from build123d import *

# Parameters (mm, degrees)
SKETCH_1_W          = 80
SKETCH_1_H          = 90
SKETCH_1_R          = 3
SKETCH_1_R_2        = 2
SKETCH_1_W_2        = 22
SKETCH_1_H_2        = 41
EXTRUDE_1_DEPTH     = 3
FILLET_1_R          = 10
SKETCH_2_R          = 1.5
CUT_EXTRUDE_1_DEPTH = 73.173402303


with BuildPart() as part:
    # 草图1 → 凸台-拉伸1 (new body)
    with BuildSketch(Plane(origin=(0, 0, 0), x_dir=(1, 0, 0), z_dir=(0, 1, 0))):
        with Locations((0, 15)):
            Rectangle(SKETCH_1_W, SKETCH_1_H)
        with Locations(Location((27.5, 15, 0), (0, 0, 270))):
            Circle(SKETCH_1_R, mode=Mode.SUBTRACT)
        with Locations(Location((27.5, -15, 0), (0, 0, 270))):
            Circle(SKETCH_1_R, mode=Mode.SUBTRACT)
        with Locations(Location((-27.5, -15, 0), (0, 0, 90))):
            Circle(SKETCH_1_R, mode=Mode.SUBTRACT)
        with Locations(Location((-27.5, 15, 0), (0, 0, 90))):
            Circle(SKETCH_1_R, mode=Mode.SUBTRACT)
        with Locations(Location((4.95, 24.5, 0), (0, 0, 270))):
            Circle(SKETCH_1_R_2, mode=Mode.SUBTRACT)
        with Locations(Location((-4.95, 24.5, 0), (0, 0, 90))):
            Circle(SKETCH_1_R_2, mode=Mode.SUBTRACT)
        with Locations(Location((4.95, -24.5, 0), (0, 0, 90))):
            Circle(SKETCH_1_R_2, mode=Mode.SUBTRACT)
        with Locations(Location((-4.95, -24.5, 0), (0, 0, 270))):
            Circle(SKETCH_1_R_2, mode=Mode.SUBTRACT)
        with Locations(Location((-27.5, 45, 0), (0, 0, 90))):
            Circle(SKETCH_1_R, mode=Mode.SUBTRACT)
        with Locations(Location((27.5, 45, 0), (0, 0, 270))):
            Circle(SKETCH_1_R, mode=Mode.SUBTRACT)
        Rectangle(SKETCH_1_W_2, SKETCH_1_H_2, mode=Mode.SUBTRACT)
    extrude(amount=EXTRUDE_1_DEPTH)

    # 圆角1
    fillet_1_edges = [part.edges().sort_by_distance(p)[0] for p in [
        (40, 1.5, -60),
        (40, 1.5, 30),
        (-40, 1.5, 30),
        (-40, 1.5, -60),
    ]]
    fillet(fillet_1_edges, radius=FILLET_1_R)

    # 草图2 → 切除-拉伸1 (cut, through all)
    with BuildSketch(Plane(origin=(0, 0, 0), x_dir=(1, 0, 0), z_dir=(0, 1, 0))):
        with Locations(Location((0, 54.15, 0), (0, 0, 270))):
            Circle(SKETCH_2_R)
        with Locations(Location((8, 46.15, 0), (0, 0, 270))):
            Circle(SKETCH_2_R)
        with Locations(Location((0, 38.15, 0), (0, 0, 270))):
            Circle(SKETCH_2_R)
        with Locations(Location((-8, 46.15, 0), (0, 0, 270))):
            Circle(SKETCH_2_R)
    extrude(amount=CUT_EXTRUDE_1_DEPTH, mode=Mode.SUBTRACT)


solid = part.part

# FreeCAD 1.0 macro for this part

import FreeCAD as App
import Part
import Sketcher
Q = App.Units.Quantity


def edges_at(feature, points):
    """Names of the edges that pass closest to the given points."""
    edges = feature.Shape.Edges
    near = lambda p: min(range(len(edges)), key=lambda i: edges[i].distToShape(Part.Vertex(*p))[0])
    return sorted({f"Edge{near(p) + 1}" for p in points})

doc = App.newDocument("Part")
params = doc.addObject("Spreadsheet::Sheet", "Params")
for row, (alias, value) in enumerate([
    ("sketch1_diameter", "6 mm"),
    ("sketch1_diameter2", "4 mm"),
    ("sketch1_width", "80 mm"),
    ("sketch1_width2", "22 mm"),
    ("sketch1_height", "90 mm"),
    ("pad1_length", "3 mm"),
    ("fillet_radius", "10 mm"),
    ("sketch2_diameter", "3 mm"),
], start=1):
    params.set(f"A{row}", alias)
    params.set(f"B{row}", "=" + value)
    params.setAlias(f"B{row}", alias)

body = doc.addObject("PartDesign::Body", "Body")

sketch1 = doc.addObject("Sketcher::SketchObject", "Sketch")
body.addObject(sketch1)
sketch1.AttachmentSupport = (doc.XZ_Plane, [""])
sketch1.MapMode = "FlatFace"
sketch1.addGeometry(Part.LineSegment(App.Vector(-40, -60, 0), App.Vector(-40, 30, 0)), False)
sketch1.addGeometry(Part.LineSegment(App.Vector(-40, 30, 0), App.Vector(40, 30, 0)), False)
sketch1.addGeometry(Part.LineSegment(App.Vector(40, 30, 0), App.Vector(40, -60, 0)), False)
sketch1.addGeometry(Part.LineSegment(App.Vector(40, -60, 0), App.Vector(-40, -60, 0)), False)
sketch1.addGeometry(Part.Circle(App.Vector(-27.5, 15, 0), App.Vector(0, 0, 1), 3), False)
sketch1.addGeometry(Part.Circle(App.Vector(-4.95, 24.5, 0), App.Vector(0, 0, 1), 2), False)
sketch1.addGeometry(Part.Circle(App.Vector(4.95, 24.5, 0), App.Vector(0, 0, 1), 2), False)
sketch1.addGeometry(Part.Circle(App.Vector(27.5, 15, 0), App.Vector(0, 0, 1), 3), False)
sketch1.addGeometry(Part.LineSegment(App.Vector(11, 20.5, 0), App.Vector(-11, 20.5, 0)), False)
sketch1.addGeometry(Part.LineSegment(App.Vector(-11, 20.5, 0), App.Vector(-11, -20.5, 0)), False)
sketch1.addGeometry(Part.LineSegment(App.Vector(-11, -20.5, 0), App.Vector(11, -20.5, 0)), False)
sketch1.addGeometry(Part.LineSegment(App.Vector(11, -20.5, 0), App.Vector(11, 20.5, 0)), False)
sketch1.addGeometry(Part.Circle(App.Vector(-27.5, -15, 0), App.Vector(0, 0, 1), 3), False)
sketch1.addGeometry(Part.Circle(App.Vector(-4.95, -24.5, 0), App.Vector(0, 0, 1), 2), False)
sketch1.addGeometry(Part.Circle(App.Vector(-27.5, -45, 0), App.Vector(0, 0, 1), 3), False)
sketch1.addGeometry(Part.Circle(App.Vector(4.95, -24.5, 0), App.Vector(0, 0, 1), 2), False)
sketch1.addGeometry(Part.Circle(App.Vector(27.5, -15, 0), App.Vector(0, 0, 1), 3), False)
sketch1.addGeometry(Part.Circle(App.Vector(27.5, -45, 0), App.Vector(0, 0, 1), 3), False)
sketch1.addConstraint(Sketcher.Constraint("Coincident", 0, 2, 1, 1))
sketch1.addConstraint(Sketcher.Constraint("Coincident", 1, 2, 2, 1))
sketch1.addConstraint(Sketcher.Constraint("Coincident", 2, 2, 3, 1))
sketch1.addConstraint(Sketcher.Constraint("Coincident", 3, 2, 0, 1))
sketch1.addConstraint(Sketcher.Constraint("Coincident", 8, 2, 9, 1))
sketch1.addConstraint(Sketcher.Constraint("Coincident", 9, 2, 10, 1))
sketch1.addConstraint(Sketcher.Constraint("Coincident", 10, 2, 11, 1))
sketch1.addConstraint(Sketcher.Constraint("Coincident", 11, 2, 8, 1))
sketch1.addConstraint(Sketcher.Constraint("Vertical", 0))
sketch1.addConstraint(Sketcher.Constraint("Horizontal", 1))
sketch1.addConstraint(Sketcher.Constraint("Vertical", 2))
sketch1.addConstraint(Sketcher.Constraint("Horizontal", 3))
sketch1.addConstraint(Sketcher.Constraint("Horizontal", 8))
sketch1.addConstraint(Sketcher.Constraint("Vertical", 9))
sketch1.addConstraint(Sketcher.Constraint("Horizontal", 10))
sketch1.addConstraint(Sketcher.Constraint("Vertical", 11))
sketch1.addConstraint(Sketcher.Constraint("Equal", 5, 6))
sketch1.addConstraint(Sketcher.Constraint("Equal", 4, 7))
sketch1.addConstraint(Sketcher.Constraint("Equal", 7, 12))
sketch1.addConstraint(Sketcher.Constraint("Equal", 6, 13))
sketch1.addConstraint(Sketcher.Constraint("Equal", 12, 14))
sketch1.addConstraint(Sketcher.Constraint("Equal", 13, 15))
sketch1.addConstraint(Sketcher.Constraint("Equal", 14, 16))
sketch1.addConstraint(Sketcher.Constraint("Equal", 16, 17))
sketch1.addConstraint(Sketcher.Constraint("Symmetric", 7, 3, 12, 3, -1, 1))
sketch1.addConstraint(Sketcher.Constraint("Symmetric", 6, 3, 13, 3, -1, 1))
sketch1.addConstraint(Sketcher.Constraint("Symmetric", 5, 3, 15, 3, -1, 1))
sketch1.addConstraint(Sketcher.Constraint("Symmetric", 4, 3, 16, 3, -1, 1))
sketch1.addConstraint(Sketcher.Constraint("Symmetric", 8, 2, 10, 2, -1, 1))
sketch1.addConstraint(Sketcher.Constraint("Symmetric", 5, 3, 6, 3, -2))
sketch1.addConstraint(Sketcher.Constraint("Symmetric", 4, 3, 7, 3, -2))
sketch1.addConstraint(Sketcher.Constraint("Symmetric", 14, 3, 17, 3, -2))
sketch1.addConstraint(Sketcher.Constraint("Vertical", 12, 3, 14, 3))
sketch1.addConstraint(Sketcher.Constraint("Diameter", 4, Q("6 mm")))
sketch1.addConstraint(Sketcher.Constraint("Diameter", 5, Q("4 mm")))
sketch1.addConstraint(Sketcher.Constraint("DistanceX", 1, 1, 1, 2, Q("80 mm")))
sketch1.addConstraint(Sketcher.Constraint("DistanceX", 8, 2, 8, 1, Q("22 mm")))
sketch1.addConstraint(Sketcher.Constraint("DistanceY", 0, 1, 0, 2, Q("90 mm")))
sketch1.addConstraint(Sketcher.Constraint("DistanceY", 9, 2, 9, 1, Q("41 mm")))
sketch1.addConstraint(Sketcher.Constraint("DistanceY", -1, 1, 4, 3, Q("15 mm")))
sketch1.addConstraint(Sketcher.Constraint("DistanceY", 14, 3, -1, 1, Q("45 mm")))
sketch1.addConstraint(Sketcher.Constraint("DistanceX", 0, 2, -1, 1, Q("40 mm")))
sketch1.addConstraint(Sketcher.Constraint("DistanceY", -1, 1, 0, 2, Q("30 mm")))
sketch1.addConstraint(Sketcher.Constraint("DistanceX", 4, 3, 7, 3, Q("55 mm")))
sketch1.addConstraint(Sketcher.Constraint("DistanceY", 13, 3, 5, 3, Q("49 mm")))
sketch1.addConstraint(Sketcher.Constraint("DistanceX", 5, 3, 6, 3, Q("9.9 mm")))
sketch1.setExpression("Constraints[33]", "Params.sketch1_diameter")
sketch1.setExpression("Constraints[34]", "Params.sketch1_diameter2")
sketch1.setExpression("Constraints[35]", "Params.sketch1_width")
sketch1.setExpression("Constraints[36]", "Params.sketch1_width2")
sketch1.setExpression("Constraints[37]", "Params.sketch1_height")
pad1 = doc.addObject("PartDesign::Pad", "Pad")
body.addObject(pad1)
pad1.Profile = sketch1
pad1.setExpression("Length", "Params.pad1_length")
pad1.Reversed = True
doc.recompute()

fillet = doc.addObject("PartDesign::Fillet", "Fillet")
body.addObject(fillet)
fillet.Base = (pad1, edges_at(pad1, [
    (40, 1.5, -60),
    (40, 1.5, 30),
    (-40, 1.5, 30),
    (-40, 1.5, -60),
]))
fillet.setExpression("Radius", "Params.fillet_radius")

sketch2 = doc.addObject("Sketcher::SketchObject", "Sketch001")
body.addObject(sketch2)
sketch2.AttachmentSupport = (doc.XZ_Plane, [""])
sketch2.MapMode = "FlatFace"
sketch2.addGeometry(Part.Circle(App.Vector(0, -54.15, 0), App.Vector(0, 0, 1), 1.5), False)
sketch2.addGeometry(Part.Circle(App.Vector(8, -46.15, 0), App.Vector(0, 0, 1), 1.5), False)
sketch2.addGeometry(Part.Circle(App.Vector(0, -38.15, 0), App.Vector(0, 0, 1), 1.5), False)
sketch2.addGeometry(Part.Circle(App.Vector(-8, -46.15, 0), App.Vector(0, 0, 1), 1.5), False)
sketch2.addConstraint(Sketcher.Constraint("Equal", 0, 1))
sketch2.addConstraint(Sketcher.Constraint("Equal", 1, 2))
sketch2.addConstraint(Sketcher.Constraint("Equal", 2, 3))
sketch2.addConstraint(Sketcher.Constraint("Symmetric", 1, 3, 3, 3, -2))
sketch2.addConstraint(Sketcher.Constraint("PointOnObject", 0, 3, -2))
sketch2.addConstraint(Sketcher.Constraint("PointOnObject", 2, 3, -2))
sketch2.addConstraint(Sketcher.Constraint("Diameter", 0, Q("3 mm")))
sketch2.addConstraint(Sketcher.Constraint("DistanceX", -1, 1, 1, 3, Q("8 mm")))
sketch2.addConstraint(Sketcher.Constraint("DistanceY", 0, 3, 1, 3, Q("8 mm")))
sketch2.addConstraint(Sketcher.Constraint("DistanceY", 1, 3, 2, 3, Q("8 mm")))
sketch2.addConstraint(Sketcher.Constraint("DistanceY", 0, 3, -1, 1, Q("54.15 mm")))
sketch2.setExpression("Constraints[6]", "Params.sketch2_diameter")
pocket1 = doc.addObject("PartDesign::Pocket", "Pocket")
body.addObject(pocket1)
pocket1.Profile = sketch2
pocket1.Type = "ThroughAll"

doc.recompute()
